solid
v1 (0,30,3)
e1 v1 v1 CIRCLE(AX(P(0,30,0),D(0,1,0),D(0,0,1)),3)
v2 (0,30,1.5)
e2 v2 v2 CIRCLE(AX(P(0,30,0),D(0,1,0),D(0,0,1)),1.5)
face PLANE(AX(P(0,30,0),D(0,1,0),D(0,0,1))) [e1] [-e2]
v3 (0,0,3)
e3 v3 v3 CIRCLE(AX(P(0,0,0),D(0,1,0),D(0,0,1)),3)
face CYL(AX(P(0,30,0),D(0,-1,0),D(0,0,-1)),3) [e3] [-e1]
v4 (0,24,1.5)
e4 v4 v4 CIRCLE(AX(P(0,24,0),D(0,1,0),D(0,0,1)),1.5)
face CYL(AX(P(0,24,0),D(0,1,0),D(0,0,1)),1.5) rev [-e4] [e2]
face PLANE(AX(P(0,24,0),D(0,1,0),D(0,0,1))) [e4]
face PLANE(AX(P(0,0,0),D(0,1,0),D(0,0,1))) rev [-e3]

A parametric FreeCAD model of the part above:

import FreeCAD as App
import Part
import Sketcher
from FreeCAD import Vector
Q = App.Units.Quantity

doc = App.newDocument("Part")
params = doc.addObject("Spreadsheet::Sheet", "Params")
for row, (alias, value) in enumerate([
    ("sketch1_diameter", "6 mm"),
    ("pad1_length", "30 mm"),
    ("sketch2_diameter", "3 mm"),
    ("pocket1_length", "6 mm"),
], start=1):
    params.set(f"A{row}", alias)
    params.set(f"B{row}", "=" + value)
    params.setAlias(f"B{row}", alias)

body = doc.addObject("PartDesign::Body", "Body")

# Sketch on XZ plane
sketch1 = body.newObject("Sketcher::SketchObject", "Sketch")
sketch1.AttachmentSupport = (doc.getObject("XZ_Plane"), [""])
sketch1.MapMode = "FlatFace"
sketch1.addGeometry(Part.Circle(Vector(0, 0, 0), Vector(0, 0, 1), 3), False)
sketch1.addConstraint(Sketcher.Constraint("Coincident", 0, 3, -1, 1))
sketch1.addConstraint(Sketcher.Constraint("Diameter", 0, Q("6 mm")))
sketch1.setExpression("Constraints[1]", "Params.sketch1_diameter")
pad1 = body.newObject("PartDesign::Pad", "Pad")
pad1.Profile = sketch1
pad1.setExpression("Length", "Params.pad1_length")
pad1.Reversed = True

# Sketch on XZ plane
sketch2 = body.newObject("Sketcher::SketchObject", "Sketch001")
sketch2.AttachmentSupport = (doc.getObject("XZ_Plane"), [""])
sketch2.MapMode = "FlatFace"
sketch2.AttachmentOffset = App.Placement(Vector(0, 0, -30), App.Rotation())
sketch2.addGeometry(Part.Circle(Vector(0, 0, 0), Vector(0, 0, 1), 1.5), False)
sketch2.addConstraint(Sketcher.Constraint("Coincident", 0, 3, -1, 1))
sketch2.addConstraint(Sketcher.Constraint("Diameter", 0, Q("3 mm")))
sketch2.setExpression("Constraints[1]", "Params.sketch2_diameter")
pocket1 = body.newObject("PartDesign::Pocket", "Pocket")
pocket1.Profile = sketch2
pocket1.setExpression("Length", "Params.pocket1_length")
pocket1.Reversed = True

doc.recompute()
